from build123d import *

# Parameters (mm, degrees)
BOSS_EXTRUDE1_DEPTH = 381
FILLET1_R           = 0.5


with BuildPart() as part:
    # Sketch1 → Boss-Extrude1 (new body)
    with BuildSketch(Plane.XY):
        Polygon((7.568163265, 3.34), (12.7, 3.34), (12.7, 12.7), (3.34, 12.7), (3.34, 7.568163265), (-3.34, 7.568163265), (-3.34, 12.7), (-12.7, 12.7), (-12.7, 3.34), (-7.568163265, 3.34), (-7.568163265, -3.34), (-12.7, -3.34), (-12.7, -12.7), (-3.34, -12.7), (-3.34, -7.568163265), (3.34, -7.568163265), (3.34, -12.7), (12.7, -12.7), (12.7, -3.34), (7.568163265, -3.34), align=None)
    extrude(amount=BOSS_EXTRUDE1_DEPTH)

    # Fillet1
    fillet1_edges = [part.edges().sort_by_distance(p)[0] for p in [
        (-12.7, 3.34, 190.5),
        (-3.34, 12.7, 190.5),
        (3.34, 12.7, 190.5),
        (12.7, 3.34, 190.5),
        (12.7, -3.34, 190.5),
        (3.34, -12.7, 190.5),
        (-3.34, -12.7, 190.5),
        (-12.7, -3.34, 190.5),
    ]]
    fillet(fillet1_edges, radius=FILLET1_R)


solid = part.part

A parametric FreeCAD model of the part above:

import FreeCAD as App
import Part
import Sketcher
from FreeCAD import Vector


def edges_at(feature, points):
    """Names of the edges that pass closest to the given points."""
    edges = feature.Shape.Edges
    near = lambda p: min(range(len(edges)), key=lambda i: edges[i].distToShape(Part.Vertex(*p))[0])
    return sorted({f"Edge{near(p) + 1}" for p in points})


def add_polygon(sketch, points):
    """Adds a closed chain of lines whose ends are joined by coincident constraints."""
    first, n = sketch.GeometryCount, len(points)
    for a, b in zip(points, points[1:] + points[:1]):
        sketch.addGeometry(Part.LineSegment(App.Vector(*a, 0), App.Vector(*b, 0)), False)
    for i in range(n):
        sketch.addConstraint(Sketcher.Constraint("Coincident", first + i, 2, first + (i + 1) % n, 1))

doc = App.newDocument("Part")
body = doc.addObject("PartDesign::Body", "Body")

sketch1 = body.newObject("Sketcher::SketchObject", "Sketch")
sketch1.AttachmentSupport = (doc.getObject("XY_Plane"), [""])
sketch1.MapMode = "FlatFace"
add_polygon(sketch1, [(7.568163, 3.34), (12.7, 3.34), (12.7, 12.7), (3.34, 12.7), (3.34, 7.568163), (-3.34, 7.568163), (-3.34, 12.7), (-12.7, 12.7), (-12.7, 3.34), (-7.568163, 3.34), (-7.568163, -3.34), (-12.7, -3.34), (-12.7, -12.7), (-3.34, -12.7), (-3.34, -7.568163), (3.34, -7.568163), (3.34, -12.7), (12.7, -12.7), (12.7, -3.34), (7.568163, -3.34)])
sketch1.addConstraint(Sketcher.Constraint("Horizontal", 0))
sketch1.addConstraint(Sketcher.Constraint("Vertical", 1))
sketch1.addConstraint(Sketcher.Constraint("Horizontal", 2))
sketch1.addConstraint(Sketcher.Constraint("Vertical", 3))
sketch1.addConstraint(Sketcher.Constraint("Horizontal", 4))
sketch1.addConstraint(Sketcher.Constraint("Vertical", 5))
sketch1.addConstraint(Sketcher.Constraint("Horizontal", 6))
sketch1.addConstraint(Sketcher.Constraint("Vertical", 7))
sketch1.addConstraint(Sketcher.Constraint("Horizontal", 8))
sketch1.addConstraint(Sketcher.Constraint("Vertical", 9))
sketch1.addConstraint(Sketcher.Constraint("Horizontal", 10))
sketch1.addConstraint(Sketcher.Constraint("Vertical", 11))
sketch1.addConstraint(Sketcher.Constraint("Horizontal", 12))
sketch1.addConstraint(Sketcher.Constraint("Vertical", 13))
sketch1.addConstraint(Sketcher.Constraint("Horizontal", 14))
sketch1.addConstraint(Sketcher.Constraint("Vertical", 15))
sketch1.addConstraint(Sketcher.Constraint("Horizontal", 16))
sketch1.addConstraint(Sketcher.Constraint("Vertical", 17))
sketch1.addConstraint(Sketcher.Constraint("Horizontal", 18))
sketch1.addConstraint(Sketcher.Constraint("Vertical", 19))
sketch1.addConstraint(Sketcher.Constraint("Symmetric", 0, 2, 10, 2, -1, 1))
sketch1.addConstraint(Sketcher.Constraint("Symmetric", 2, 2, 12, 2, -1, 1))
sketch1.addConstraint(Sketcher.Constraint("Symmetric", 4, 2, 14, 2, -1, 1))
sketch1.addConstraint(Sketcher.Constraint("Symmetric", 6, 2, 16, 2, -1, 1))
sketch1.addConstraint(Sketcher.Constraint("Symmetric", 8, 2, 18, 2, -1, 1))
sketch1.addConstraint(Sketcher.Constraint("Symmetric", 2, 2, 5, 2, -2))
sketch1.addConstraint(Sketcher.Constraint("Symmetric", 0, 2, 7, 2, -2))
sketch1.addConstraint(Sketcher.Constraint("Equal", 16, 1))
sketch1.addConstraint(Sketcher.Constraint("Equal", 18, 3))
sketch1.addConstraint(Sketcher.Constraint("Equal", 14, 9))
sketch1.addConstraint(Sketcher.Constraint("DistanceX", 2, 2, 2, 1, 9.36))
sketch1.addConstraint(Sketcher.Constraint("DistanceX", 4, 2, 4, 1, 6.68))
sketch1.addConstraint(Sketcher.Constraint("DistanceX", 0, 1, 0, 2, 5.131837))
pad1 = body.newObject("PartDesign::Pad", "Pad")
pad1.Profile = sketch1
pad1.Length = 381
doc.recompute()

fillet = body.newObject("PartDesign::Fillet", "Fillet")
fillet.Base = (pad1, edges_at(pad1, [
    (-12.7, 3.34, 190.5),
    (-3.34, 12.7, 190.5),
    (3.34, 12.7, 190.5),
    (12.7, 3.34, 190.5),
    (12.7, -3.34, 190.5),
    (3.34, -12.7, 190.5),
    (-3.34, -12.7, 190.5),
    (-12.7, -3.34, 190.5),
]))
fillet.Radius = 0.5

doc.recompute()
